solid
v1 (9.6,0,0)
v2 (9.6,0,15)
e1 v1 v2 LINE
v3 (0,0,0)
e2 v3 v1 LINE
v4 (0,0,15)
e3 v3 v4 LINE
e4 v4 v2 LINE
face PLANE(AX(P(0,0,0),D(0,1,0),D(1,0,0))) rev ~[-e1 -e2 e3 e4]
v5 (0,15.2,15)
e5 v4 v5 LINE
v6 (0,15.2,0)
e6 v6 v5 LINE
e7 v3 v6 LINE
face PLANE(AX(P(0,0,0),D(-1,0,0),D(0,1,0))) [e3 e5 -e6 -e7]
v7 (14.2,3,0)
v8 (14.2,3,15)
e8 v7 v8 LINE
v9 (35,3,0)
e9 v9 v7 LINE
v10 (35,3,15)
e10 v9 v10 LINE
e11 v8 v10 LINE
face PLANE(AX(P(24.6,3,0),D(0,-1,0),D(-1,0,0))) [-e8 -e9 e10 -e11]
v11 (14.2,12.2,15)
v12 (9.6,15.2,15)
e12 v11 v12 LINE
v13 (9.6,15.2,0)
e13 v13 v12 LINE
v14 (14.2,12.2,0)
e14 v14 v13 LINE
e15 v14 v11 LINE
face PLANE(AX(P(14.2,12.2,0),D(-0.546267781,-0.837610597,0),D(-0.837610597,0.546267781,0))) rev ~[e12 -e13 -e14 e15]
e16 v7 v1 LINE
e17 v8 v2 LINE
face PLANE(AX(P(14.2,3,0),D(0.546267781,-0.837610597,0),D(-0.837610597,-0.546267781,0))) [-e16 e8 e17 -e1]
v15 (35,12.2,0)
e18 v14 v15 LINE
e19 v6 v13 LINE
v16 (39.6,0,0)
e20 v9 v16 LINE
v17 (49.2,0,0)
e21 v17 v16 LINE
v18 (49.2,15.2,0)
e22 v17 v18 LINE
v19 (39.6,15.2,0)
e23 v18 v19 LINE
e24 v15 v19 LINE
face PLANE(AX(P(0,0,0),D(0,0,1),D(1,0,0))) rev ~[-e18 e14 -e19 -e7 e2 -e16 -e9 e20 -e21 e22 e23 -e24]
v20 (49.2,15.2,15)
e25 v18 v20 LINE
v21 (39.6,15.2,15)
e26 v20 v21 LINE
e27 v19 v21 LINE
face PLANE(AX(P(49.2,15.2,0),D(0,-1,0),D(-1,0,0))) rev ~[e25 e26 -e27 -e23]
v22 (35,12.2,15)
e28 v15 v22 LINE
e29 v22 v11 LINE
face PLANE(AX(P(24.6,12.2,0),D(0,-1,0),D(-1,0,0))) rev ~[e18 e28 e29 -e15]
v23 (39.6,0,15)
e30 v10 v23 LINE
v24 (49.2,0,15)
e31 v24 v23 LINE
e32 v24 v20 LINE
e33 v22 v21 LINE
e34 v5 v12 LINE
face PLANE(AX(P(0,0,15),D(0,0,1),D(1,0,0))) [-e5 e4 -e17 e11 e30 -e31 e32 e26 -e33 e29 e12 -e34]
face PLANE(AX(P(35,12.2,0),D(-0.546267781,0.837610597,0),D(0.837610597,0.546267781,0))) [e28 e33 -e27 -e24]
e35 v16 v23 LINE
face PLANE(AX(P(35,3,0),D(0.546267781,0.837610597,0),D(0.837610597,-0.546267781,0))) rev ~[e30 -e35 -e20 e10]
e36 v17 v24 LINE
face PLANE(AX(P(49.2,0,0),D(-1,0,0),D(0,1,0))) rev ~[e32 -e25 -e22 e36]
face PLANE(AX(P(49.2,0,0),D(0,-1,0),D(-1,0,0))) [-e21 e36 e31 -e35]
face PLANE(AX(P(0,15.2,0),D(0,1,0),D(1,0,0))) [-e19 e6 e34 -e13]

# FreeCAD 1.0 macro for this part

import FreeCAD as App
import Part
import Sketcher
from FreeCAD import Vector

doc = App.newDocument("Part")
body = doc.addObject("PartDesign::Body", "Body")

# Sketch on XY plane
sketch1 = body.newObject("Sketcher::SketchObject", "Sketch")
sketch1.AttachmentSupport = (doc.getObject("XY_Plane"), [""])
sketch1.MapMode = "FlatFace"
sketch1.addGeometry([
    Part.LineSegment(Vector(0, 15, 0), Vector(0, 0, 0)),  # 0
    Part.LineSegment(Vector(0, 0, 0), Vector(10, 0, 0)),  # 1
    Part.LineSegment(Vector(10, 0, 0), Vector(14, 3, 0)),  # 2
    Part.LineSegment(Vector(14, 3, 0), Vector(35, 3, 0)),  # 3
    Part.LineSegment(Vector(35, 3, 0), Vector(40, 0, 0)),  # 4
    Part.LineSegment(Vector(40, 0, 0), Vector(49, 0, 0)),  # 5
    Part.LineSegment(Vector(49, 0, 0), Vector(49, 15, 0)),  # 6
    Part.LineSegment(Vector(49, 15, 0), Vector(40, 15, 0)),  # 7
    Part.LineSegment(Vector(40, 15, 0), Vector(35, 12, 0)),  # 8
    Part.LineSegment(Vector(35, 12, 0), Vector(14, 12, 0)),  # 9
    Part.LineSegment(Vector(14, 12, 0), Vector(10, 15, 0)),  # 10
    Part.LineSegment(Vector(10, 15, 0), Vector(0, 15, 0)),  # 11
], False)
sketch1.addConstraint([
    Sketcher.Constraint("Coincident", 0, 2, 1, 1),
    Sketcher.Constraint("Coincident", 1, 2, 2, 1),
    Sketcher.Constraint("Coincident", 2, 2, 3, 1),
    Sketcher.Constraint("Coincident", 3, 2, 4, 1),
    Sketcher.Constraint("Coincident", 4, 2, 5, 1),
    Sketcher.Constraint("Coincident", 5, 2, 6, 1),
    Sketcher.Constraint("Coincident", 6, 2, 7, 1),
    Sketcher.Constraint("Coincident", 7, 2, 8, 1),
    Sketcher.Constraint("Coincident", 8, 2, 9, 1),
    Sketcher.Constraint("Coincident", 9, 2, 10, 1),
    Sketcher.Constraint("Coincident", 10, 2, 11, 1),
    Sketcher.Constraint("Coincident", 11, 2, 0, 1),
    Sketcher.Constraint("Vertical", 0),
    Sketcher.Constraint("Horizontal", 1),
    Sketcher.Constraint("Horizontal", 3),
    Sketcher.Constraint("Horizontal", 5),
    Sketcher.Constraint("Vertical", 6),
    Sketcher.Constraint("Horizontal", 7),
    Sketcher.Constraint("Horizontal", 9),
    Sketcher.Constraint("Horizontal", 11),
    Sketcher.Constraint("Coincident", 0, 2, -1, 1),
    Sketcher.Constraint("PointOnObject", 4, 2, -1),
    Sketcher.Constraint("Parallel", 2, 8),
    Sketcher.Constraint("Parallel", 4, 10),
    Sketcher.Constraint("Horizontal", 7, 2, 10, 2),
    Sketcher.Constraint("Vertical", 4, 2, 7, 2),
    Sketcher.Constraint("Vertical", 3, 2, 8, 2),
    Sketcher.Constraint("Vertical", 2, 2, 9, 2),
    Sketcher.Constraint("Vertical", 1, 2, 10, 2),
    Sketcher.Constraint("Equal", 1, 5),
    Sketcher.Constraint("DistanceX", 1, 1, 1, 2, 9.6),
    Sketcher.Constraint("DistanceY", 0, 2, 0, 1, 15.2),
    Sketcher.Constraint("DistanceY", -1, 1, 2, 2, 3.0),
    Sketcher.Constraint("DistanceX", 3, 1, 3, 2, 20.8),
    Sketcher.Constraint("DistanceX", -1, 1, 3, 2, 35.0),
])
pad1 = body.newObject("PartDesign::Pad", "Pad")
pad1.Profile = sketch1
pad1.Length = 15

doc.recompute()
